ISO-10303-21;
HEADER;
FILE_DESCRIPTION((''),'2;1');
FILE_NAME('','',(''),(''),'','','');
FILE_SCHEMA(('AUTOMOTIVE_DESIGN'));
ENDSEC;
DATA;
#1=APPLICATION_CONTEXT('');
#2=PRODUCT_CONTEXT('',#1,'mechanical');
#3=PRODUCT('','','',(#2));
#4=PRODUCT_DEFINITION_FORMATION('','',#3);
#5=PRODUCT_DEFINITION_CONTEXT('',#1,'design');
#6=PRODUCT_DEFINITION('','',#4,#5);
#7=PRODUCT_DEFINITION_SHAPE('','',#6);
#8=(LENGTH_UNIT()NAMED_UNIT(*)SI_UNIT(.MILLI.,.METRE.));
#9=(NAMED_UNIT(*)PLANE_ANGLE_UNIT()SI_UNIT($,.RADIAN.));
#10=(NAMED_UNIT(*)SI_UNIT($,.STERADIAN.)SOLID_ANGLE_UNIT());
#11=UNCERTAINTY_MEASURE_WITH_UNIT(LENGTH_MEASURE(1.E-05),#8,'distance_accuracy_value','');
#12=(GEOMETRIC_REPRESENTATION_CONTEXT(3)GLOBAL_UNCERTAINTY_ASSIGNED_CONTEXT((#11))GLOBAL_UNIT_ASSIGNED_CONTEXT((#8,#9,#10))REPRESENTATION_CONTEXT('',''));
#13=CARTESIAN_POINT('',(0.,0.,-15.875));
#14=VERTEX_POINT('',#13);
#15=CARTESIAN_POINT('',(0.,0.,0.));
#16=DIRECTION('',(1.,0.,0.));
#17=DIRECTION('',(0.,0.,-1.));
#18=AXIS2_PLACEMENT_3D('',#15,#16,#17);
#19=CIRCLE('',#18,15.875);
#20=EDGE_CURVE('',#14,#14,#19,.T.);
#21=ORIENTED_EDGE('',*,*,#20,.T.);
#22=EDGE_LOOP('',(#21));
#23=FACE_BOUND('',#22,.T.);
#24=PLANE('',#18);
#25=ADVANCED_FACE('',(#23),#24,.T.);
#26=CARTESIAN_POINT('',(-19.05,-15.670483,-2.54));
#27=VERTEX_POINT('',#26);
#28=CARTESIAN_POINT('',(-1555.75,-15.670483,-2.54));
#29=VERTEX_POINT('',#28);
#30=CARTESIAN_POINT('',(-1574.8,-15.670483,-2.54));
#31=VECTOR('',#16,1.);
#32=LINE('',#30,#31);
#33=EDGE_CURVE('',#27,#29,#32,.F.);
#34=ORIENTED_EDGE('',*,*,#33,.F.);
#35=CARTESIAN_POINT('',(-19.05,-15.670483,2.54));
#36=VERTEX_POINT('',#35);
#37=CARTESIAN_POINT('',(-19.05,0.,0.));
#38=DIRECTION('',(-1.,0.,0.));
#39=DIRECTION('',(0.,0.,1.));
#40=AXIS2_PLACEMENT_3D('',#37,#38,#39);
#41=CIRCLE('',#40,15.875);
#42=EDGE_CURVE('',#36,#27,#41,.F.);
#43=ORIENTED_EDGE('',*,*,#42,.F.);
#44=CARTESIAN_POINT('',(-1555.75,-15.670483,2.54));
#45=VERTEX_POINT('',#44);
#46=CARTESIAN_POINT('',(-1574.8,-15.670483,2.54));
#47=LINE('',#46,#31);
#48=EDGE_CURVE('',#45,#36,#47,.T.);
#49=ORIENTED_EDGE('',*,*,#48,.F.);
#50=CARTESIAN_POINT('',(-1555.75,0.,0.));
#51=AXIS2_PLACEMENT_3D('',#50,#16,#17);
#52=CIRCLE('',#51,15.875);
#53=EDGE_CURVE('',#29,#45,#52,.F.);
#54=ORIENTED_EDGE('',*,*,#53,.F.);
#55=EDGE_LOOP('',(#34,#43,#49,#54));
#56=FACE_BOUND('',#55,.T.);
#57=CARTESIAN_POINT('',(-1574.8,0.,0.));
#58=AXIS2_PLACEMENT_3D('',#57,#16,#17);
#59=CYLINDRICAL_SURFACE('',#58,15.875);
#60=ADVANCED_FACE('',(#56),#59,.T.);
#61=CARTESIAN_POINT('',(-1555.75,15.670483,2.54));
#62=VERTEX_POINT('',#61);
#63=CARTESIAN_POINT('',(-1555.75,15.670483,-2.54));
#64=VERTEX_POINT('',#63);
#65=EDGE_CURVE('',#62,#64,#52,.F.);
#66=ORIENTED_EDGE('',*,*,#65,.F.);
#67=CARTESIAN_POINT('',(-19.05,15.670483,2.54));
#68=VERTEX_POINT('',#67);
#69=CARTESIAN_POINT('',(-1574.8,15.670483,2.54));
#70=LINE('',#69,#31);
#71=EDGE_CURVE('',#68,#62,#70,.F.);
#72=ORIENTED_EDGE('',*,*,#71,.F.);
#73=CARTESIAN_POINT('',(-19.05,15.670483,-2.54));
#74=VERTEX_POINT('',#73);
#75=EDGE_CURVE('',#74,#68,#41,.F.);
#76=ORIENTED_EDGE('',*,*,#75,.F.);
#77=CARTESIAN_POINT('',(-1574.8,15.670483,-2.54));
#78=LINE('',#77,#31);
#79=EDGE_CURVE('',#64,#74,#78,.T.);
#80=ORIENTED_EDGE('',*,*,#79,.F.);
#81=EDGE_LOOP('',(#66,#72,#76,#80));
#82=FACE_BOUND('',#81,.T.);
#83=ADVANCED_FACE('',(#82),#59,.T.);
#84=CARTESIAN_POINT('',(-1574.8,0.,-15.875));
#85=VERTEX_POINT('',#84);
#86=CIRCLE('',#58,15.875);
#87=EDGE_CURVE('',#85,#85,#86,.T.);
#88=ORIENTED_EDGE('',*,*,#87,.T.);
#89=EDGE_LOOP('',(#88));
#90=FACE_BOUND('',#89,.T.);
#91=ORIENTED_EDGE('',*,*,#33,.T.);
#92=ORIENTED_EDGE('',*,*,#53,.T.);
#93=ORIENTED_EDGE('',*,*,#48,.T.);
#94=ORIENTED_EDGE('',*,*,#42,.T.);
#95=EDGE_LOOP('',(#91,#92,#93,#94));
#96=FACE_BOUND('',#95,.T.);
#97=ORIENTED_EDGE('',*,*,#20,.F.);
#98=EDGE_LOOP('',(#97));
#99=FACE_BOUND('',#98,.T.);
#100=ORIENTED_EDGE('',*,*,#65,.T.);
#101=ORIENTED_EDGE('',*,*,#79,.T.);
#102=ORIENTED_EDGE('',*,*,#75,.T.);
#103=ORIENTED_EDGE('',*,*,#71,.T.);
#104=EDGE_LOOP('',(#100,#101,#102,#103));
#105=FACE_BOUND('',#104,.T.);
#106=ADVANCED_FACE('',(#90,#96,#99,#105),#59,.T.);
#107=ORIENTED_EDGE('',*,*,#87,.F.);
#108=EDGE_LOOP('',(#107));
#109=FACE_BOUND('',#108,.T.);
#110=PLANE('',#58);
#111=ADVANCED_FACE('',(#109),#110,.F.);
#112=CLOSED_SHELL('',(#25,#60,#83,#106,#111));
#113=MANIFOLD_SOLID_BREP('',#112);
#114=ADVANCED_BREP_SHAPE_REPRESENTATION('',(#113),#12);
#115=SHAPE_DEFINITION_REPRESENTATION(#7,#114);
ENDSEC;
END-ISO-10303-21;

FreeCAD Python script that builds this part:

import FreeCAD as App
import Part
import Sketcher

V = App.Vector
Q = App.Units.Quantity

doc = App.newDocument("Part")
body = doc.addObject("PartDesign::Body", "Body")

# Sketch on YZ plane
sketch1 = body.newObject("Sketcher::SketchObject", "Sketch")
sketch1.AttachmentSupport = (doc.getObject("YZ_Plane"), [""])
sketch1.MapMode = "FlatFace"
sketch1.addGeometry(Part.Circle(V(0, 0, 0), V(0, 0, 1), 16), False)
sketch1.addConstraint([
    Sketcher.Constraint("Coincident", 0, 3, -1, 1),
    Sketcher.Constraint("Diameter", 0, Q("1.25 in")),
])
pad1 = body.newObject("PartDesign::Pad", "Pad")
pad1.Profile = sketch1
pad1.Length = Q("62 in")
pad1.Reversed = True

doc.recompute()
